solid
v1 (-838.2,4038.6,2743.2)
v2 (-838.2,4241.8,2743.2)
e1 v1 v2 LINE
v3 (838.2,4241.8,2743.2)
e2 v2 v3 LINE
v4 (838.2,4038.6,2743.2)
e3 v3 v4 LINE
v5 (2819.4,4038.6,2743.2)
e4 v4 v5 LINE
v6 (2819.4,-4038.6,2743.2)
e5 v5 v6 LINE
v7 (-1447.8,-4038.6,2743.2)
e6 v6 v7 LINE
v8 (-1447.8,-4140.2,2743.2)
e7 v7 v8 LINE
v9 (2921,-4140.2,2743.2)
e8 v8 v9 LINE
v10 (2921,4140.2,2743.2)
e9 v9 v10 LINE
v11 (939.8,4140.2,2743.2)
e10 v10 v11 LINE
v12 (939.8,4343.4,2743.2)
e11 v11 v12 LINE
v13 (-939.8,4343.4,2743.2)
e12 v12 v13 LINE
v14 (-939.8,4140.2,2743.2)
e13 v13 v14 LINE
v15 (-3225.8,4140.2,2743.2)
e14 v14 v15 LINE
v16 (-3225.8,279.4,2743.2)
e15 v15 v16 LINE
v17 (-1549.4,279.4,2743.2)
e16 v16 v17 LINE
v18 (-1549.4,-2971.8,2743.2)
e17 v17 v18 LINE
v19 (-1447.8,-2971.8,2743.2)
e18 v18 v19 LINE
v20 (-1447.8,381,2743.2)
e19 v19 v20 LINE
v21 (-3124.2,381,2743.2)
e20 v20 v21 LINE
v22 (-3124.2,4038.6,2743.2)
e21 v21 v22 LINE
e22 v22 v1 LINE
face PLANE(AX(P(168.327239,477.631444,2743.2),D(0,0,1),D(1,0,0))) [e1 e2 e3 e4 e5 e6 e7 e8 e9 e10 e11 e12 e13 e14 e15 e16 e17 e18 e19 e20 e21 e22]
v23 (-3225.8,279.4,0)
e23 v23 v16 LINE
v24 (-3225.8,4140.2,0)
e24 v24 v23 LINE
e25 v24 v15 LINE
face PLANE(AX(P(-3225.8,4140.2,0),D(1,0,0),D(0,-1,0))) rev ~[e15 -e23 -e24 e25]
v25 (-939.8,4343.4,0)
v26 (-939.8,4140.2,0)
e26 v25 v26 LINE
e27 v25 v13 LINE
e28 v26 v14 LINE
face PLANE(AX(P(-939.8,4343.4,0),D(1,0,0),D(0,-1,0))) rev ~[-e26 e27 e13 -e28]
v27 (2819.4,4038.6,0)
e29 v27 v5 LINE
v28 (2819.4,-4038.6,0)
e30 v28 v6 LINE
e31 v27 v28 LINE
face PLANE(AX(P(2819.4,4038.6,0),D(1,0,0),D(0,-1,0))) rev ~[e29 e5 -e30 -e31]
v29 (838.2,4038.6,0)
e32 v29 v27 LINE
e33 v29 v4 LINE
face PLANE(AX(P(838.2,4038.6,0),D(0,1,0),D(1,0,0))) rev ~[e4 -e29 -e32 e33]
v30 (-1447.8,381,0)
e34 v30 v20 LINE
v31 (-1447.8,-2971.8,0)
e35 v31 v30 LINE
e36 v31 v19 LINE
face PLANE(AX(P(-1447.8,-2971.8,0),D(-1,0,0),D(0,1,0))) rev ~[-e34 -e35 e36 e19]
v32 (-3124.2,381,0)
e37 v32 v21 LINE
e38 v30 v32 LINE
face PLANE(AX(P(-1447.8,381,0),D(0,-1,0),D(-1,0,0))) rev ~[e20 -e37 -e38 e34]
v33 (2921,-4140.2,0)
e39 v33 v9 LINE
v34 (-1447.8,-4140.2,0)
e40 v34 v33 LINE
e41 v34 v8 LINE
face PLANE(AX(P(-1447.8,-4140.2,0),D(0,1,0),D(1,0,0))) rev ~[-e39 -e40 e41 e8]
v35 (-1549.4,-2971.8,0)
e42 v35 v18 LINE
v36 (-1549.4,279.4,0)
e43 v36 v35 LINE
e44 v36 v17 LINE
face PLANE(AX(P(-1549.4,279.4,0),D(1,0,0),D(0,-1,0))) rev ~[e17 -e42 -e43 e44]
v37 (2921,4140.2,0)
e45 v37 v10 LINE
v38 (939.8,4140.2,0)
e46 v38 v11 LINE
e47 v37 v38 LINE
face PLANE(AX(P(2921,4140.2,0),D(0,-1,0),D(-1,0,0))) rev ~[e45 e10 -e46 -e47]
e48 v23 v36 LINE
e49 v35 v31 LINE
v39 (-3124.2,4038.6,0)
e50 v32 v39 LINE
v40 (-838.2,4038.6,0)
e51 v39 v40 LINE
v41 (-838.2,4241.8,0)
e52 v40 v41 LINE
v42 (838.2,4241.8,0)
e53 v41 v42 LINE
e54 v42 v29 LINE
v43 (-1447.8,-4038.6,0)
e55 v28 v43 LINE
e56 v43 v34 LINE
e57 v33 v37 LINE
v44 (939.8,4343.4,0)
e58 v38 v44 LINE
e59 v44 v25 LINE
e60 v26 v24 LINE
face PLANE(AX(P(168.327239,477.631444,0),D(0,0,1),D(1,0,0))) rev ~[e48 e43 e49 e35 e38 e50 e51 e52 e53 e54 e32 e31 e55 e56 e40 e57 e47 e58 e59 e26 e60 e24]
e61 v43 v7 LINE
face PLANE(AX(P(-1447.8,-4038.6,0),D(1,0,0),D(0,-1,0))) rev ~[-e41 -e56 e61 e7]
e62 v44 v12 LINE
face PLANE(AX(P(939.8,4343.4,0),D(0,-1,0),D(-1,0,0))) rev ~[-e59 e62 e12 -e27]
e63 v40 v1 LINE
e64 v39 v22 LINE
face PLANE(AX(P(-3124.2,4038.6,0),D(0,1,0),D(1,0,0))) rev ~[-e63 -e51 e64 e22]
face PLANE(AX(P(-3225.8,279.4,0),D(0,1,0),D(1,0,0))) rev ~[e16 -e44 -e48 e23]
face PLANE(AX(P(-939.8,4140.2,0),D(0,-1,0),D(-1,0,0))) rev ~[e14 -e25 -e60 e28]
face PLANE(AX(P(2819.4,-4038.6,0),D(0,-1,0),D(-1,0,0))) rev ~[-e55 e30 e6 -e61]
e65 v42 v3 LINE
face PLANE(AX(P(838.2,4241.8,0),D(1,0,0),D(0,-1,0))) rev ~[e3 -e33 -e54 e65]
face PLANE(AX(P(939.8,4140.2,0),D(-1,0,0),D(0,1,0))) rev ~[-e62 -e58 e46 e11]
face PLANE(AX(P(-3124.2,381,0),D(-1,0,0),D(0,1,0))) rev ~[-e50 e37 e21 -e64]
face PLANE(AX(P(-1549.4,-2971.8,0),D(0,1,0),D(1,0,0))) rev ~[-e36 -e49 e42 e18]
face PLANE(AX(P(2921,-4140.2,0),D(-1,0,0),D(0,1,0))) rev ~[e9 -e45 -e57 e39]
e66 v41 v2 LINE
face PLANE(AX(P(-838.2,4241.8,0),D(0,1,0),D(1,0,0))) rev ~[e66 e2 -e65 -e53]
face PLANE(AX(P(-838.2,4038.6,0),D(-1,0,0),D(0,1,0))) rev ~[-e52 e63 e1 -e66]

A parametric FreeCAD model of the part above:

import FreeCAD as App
import Part
import Sketcher
from FreeCAD import Vector
Q = App.Units.Quantity


def add_polygon(sketch, points):
    """Adds a closed chain of lines whose ends are joined by coincident constraints."""
    first, n = sketch.GeometryCount, len(points)
    for a, b in zip(points, points[1:] + points[:1]):
        sketch.addGeometry(Part.LineSegment(App.Vector(*a, 0), App.Vector(*b, 0)), False)
    for i in range(n):
        sketch.addConstraint(Sketcher.Constraint("Coincident", first + i, 2, first + (i + 1) % n, 1))

doc = App.newDocument("Part")
params = doc.addObject("Spreadsheet::Sheet", "Params")
for row, (alias, value) in enumerate([
    ("sketch1_width", "66 in"),
    ("sketch1_width2", "90 in"),
    ("sketch1_width3", "78 in"),
    ("sketch1_width4", "172 in"),
    ("sketch1_height", "144 in"),
    ("pad1_length", "108 in"),
], start=1):
    params.set(f"A{row}", alias)
    params.set(f"B{row}", "=" + value)
    params.setAlias(f"B{row}", alias)

body = doc.addObject("PartDesign::Body", "Body")

# Sketch on XY plane
sketch1 = body.newObject("Sketcher::SketchObject", "Sketch")
sketch1.AttachmentSupport = (doc.getObject("XY_Plane"), [""])
sketch1.MapMode = "FlatFace"
add_polygon(sketch1, [(-1447.8, 381), (-3124.2, 381), (-3124.2, 4038.6), (-838.2, 4038.6), (-838.2, 4241.8), (838.2, 4241.8), (838.2, 4038.6), (2819.4, 4038.6), (2819.4, -4038.6), (-1447.8, -4038.6), (-1447.8, -4140.2), (2921, -4140.2), (2921, 4140.2), (939.8, 4140.2), (939.8, 4343.4), (-939.8, 4343.4), (-939.8, 4140.2), (-3225.8, 4140.2), (-3225.8, 279.4), (-1549.4, 279.4), (-1549.4, -2971.8), (-1447.8, -2971.8)])  # lines 0-21
sketch1.addConstraint([
    Sketcher.Constraint("Horizontal", 0),
    Sketcher.Constraint("Vertical", 1),
    Sketcher.Constraint("Horizontal", 2),
    Sketcher.Constraint("Vertical", 3),
    Sketcher.Constraint("Horizontal", 4),
    Sketcher.Constraint("Vertical", 5),
    Sketcher.Constraint("Horizontal", 6),
    Sketcher.Constraint("Vertical", 7),
    Sketcher.Constraint("Horizontal", 8),
    Sketcher.Constraint("Vertical", 9),
    Sketcher.Constraint("Horizontal", 10),
    Sketcher.Constraint("Vertical", 11),
    Sketcher.Constraint("Horizontal", 12),
    Sketcher.Constraint("Vertical", 13),
    Sketcher.Constraint("Horizontal", 14),
    Sketcher.Constraint("Vertical", 15),
    Sketcher.Constraint("Horizontal", 16),
    Sketcher.Constraint("Vertical", 17),
    Sketcher.Constraint("Horizontal", 18),
    Sketcher.Constraint("Vertical", 19),
    Sketcher.Constraint("Horizontal", 20),
    Sketcher.Constraint("Vertical", 21),
    Sketcher.Constraint("Symmetric", 2, 2, 5, 2, -2),
    Sketcher.Constraint("Symmetric", 12, 2, 15, 2, -2),
    Sketcher.Constraint("Vertical", 9, 2, 20, 2),
    Sketcher.Constraint("Equal", 0, 4),
    Sketcher.Constraint("Equal", 6, 12),
    Sketcher.Constraint("Equal", 2, 16),
    Sketcher.Constraint("Equal", 4, 18),
    Sketcher.Constraint("Equal", 20, 9),
    Sketcher.Constraint("Equal", 5, 13),
    Sketcher.Constraint("DistanceX", 0, 2, 0, 1, Q("66 in")),
    Sketcher.Constraint("DistanceX", 2, 1, 2, 2, Q("90 in")),
    Sketcher.Constraint("DistanceX", 6, 1, 6, 2, Q("78 in")),
    Sketcher.Constraint("DistanceX", 10, 1, 10, 2, Q("172 in")),
    Sketcher.Constraint("DistanceY", 1, 1, 1, 2, Q("144 in")),
    Sketcher.Constraint("DistanceY", 3, 1, 3, 2, Q("8 in")),
    Sketcher.Constraint("DistanceY", 7, 2, 7, 1, Q("318 in")),
    Sketcher.Constraint("DistanceY", 11, 1, 11, 2, Q("326 in")),
    Sketcher.Constraint("DistanceY", 17, 2, 17, 1, Q("152 in")),
    Sketcher.Constraint("DistanceY", 19, 2, 19, 1, Q("128 in")),
    Sketcher.Constraint("DistanceY", -1, 1, 0, 2, Q("15 in")),
])
sketch1.setExpression("Constraints[53]", "Params.sketch1_width")
sketch1.setExpression("Constraints[54]", "Params.sketch1_width2")
sketch1.setExpression("Constraints[55]", "Params.sketch1_width3")
sketch1.setExpression("Constraints[56]", "Params.sketch1_width4")
sketch1.setExpression("Constraints[57]", "Params.sketch1_height")
pad1 = body.newObject("PartDesign::Pad", "Pad")
pad1.Profile = sketch1
pad1.setExpression("Length", "Params.pad1_length")

doc.recompute()
